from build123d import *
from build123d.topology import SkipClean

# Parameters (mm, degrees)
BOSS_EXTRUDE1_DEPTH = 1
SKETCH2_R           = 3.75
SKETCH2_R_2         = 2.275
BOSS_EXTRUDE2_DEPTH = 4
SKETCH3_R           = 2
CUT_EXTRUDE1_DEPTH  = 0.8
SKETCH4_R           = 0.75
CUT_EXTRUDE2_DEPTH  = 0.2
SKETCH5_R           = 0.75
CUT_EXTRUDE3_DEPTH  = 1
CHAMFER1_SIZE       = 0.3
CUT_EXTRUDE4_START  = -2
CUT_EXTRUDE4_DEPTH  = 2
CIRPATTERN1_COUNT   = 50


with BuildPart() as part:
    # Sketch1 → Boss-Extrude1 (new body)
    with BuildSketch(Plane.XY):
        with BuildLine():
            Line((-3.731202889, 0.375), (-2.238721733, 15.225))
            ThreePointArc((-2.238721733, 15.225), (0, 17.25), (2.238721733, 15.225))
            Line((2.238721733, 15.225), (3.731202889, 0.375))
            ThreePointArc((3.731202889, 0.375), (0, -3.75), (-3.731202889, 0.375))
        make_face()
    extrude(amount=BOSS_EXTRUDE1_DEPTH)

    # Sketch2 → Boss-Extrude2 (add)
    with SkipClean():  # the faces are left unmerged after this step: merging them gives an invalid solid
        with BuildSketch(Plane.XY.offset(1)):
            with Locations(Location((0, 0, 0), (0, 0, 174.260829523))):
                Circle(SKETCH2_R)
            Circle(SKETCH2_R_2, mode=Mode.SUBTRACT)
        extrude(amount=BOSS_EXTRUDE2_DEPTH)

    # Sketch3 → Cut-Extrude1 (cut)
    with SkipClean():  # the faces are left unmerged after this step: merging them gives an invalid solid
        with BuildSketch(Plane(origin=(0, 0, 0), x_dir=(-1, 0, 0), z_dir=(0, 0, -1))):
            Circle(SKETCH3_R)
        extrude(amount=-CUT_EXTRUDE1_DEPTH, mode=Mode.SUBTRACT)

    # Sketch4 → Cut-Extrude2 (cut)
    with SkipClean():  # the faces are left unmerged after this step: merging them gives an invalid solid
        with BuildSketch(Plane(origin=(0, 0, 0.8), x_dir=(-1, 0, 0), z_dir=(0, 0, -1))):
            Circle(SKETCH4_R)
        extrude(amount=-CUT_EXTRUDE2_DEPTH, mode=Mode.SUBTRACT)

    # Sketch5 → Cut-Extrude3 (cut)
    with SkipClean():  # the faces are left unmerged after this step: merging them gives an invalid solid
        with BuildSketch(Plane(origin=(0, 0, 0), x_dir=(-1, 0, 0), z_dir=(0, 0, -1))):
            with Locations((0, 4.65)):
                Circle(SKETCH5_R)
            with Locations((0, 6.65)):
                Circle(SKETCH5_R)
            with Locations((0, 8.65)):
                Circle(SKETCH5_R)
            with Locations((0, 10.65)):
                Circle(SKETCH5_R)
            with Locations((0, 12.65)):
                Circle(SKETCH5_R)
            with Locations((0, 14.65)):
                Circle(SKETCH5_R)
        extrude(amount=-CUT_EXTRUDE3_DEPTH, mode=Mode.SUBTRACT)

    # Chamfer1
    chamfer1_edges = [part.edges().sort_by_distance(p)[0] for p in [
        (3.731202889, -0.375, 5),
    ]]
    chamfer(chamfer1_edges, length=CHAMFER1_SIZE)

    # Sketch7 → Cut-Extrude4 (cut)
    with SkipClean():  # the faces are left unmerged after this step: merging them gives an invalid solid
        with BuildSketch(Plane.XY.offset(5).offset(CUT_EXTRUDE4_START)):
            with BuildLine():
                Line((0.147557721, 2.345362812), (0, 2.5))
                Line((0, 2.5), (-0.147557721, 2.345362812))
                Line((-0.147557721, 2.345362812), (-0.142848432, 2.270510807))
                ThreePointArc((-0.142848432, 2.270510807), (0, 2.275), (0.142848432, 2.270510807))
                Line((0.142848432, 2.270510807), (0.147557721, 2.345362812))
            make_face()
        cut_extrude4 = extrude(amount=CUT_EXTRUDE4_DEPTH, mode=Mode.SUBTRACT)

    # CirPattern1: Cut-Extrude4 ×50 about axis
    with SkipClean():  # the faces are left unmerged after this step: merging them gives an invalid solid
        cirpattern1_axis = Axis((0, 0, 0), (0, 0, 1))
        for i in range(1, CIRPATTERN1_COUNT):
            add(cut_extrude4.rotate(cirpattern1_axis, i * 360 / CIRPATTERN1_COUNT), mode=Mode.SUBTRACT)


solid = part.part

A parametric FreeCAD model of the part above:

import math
import FreeCAD as App
import Part
import Sketcher
Q = App.Units.Quantity


def edges_at(feature, points):
    """Names of the edges that pass closest to the given points."""
    edges = feature.Shape.Edges
    near = lambda p: min(range(len(edges)), key=lambda i: edges[i].distToShape(Part.Vertex(*p))[0])
    return sorted({f"Edge{near(p) + 1}" for p in points})

doc = App.newDocument("Part")
body = doc.addObject("PartDesign::Body", "Body")

sketch1 = doc.addObject("Sketcher::SketchObject", "Sketch")
body.addObject(sketch1)
sketch1.AttachmentSupport = (doc.XY_Plane, [""])
sketch1.MapMode = "FlatFace"
sketch1.addGeometry(Part.LineSegment(App.Vector(-2.2, 15.2, 0), App.Vector(-3.7, 0.4, 0)), False)
sketch1.addGeometry(Part.ArcOfCircle(Part.Circle(App.Vector(0, 0, 0), App.Vector(0, 0, 1), 3.8), math.radians(174), math.radians(366)), False)
sketch1.addGeometry(Part.LineSegment(App.Vector(3.7, 0.4, 0), App.Vector(2.2, 15.2, 0)), False)
sketch1.addGeometry(Part.ArcOfCircle(Part.Circle(App.Vector(0, 15, 0), App.Vector(0, 0, 1), 2.2), math.radians(6), math.radians(174)), False)
sketch1.addConstraint(Sketcher.Constraint("Tangent", 0, 2, 1, 1))
sketch1.addConstraint(Sketcher.Constraint("Tangent", 1, 2, 2, 1))
sketch1.addConstraint(Sketcher.Constraint("Tangent", 2, 2, 3, 1))
sketch1.addConstraint(Sketcher.Constraint("Tangent", 3, 2, 0, 1))
sketch1.addConstraint(Sketcher.Constraint("Coincident", 1, 3, -1, 1))
sketch1.addConstraint(Sketcher.Constraint("PointOnObject", 3, 3, -2))
sketch1.addConstraint(Sketcher.Constraint("Radius", 1, Q("3.75 mm")))
sketch1.addConstraint(Sketcher.Constraint("Radius", 3, Q("2.25 mm")))
sketch1.addConstraint(Sketcher.Constraint("DistanceY", -1, 1, 3, 3, Q("15 mm")))
pad1 = doc.addObject("PartDesign::Pad", "Pad")
body.addObject(pad1)
pad1.Profile = sketch1
pad1.Length = 1

sketch2 = doc.addObject("Sketcher::SketchObject", "Sketch001")
body.addObject(sketch2)
sketch2.AttachmentSupport = (doc.XY_Plane, [""])
sketch2.MapMode = "FlatFace"
sketch2.AttachmentOffset = App.Placement(App.Vector(0, 0, 1), App.Rotation())
sketch2.addGeometry(Part.Circle(App.Vector(0, 0, 0), App.Vector(0, 0, 1), 3.8), False)
sketch2.addGeometry(Part.Circle(App.Vector(0, 0, 0), App.Vector(0, 0, 1), 2.3), False)
sketch2.addConstraint(Sketcher.Constraint("Coincident", 0, 3, -1, 1))
sketch2.addConstraint(Sketcher.Constraint("Coincident", 1, 3, -1, 1))
sketch2.addConstraint(Sketcher.Constraint("Diameter", 0, Q("7.5 mm")))
sketch2.addConstraint(Sketcher.Constraint("Diameter", 1, Q("4.55 mm")))
pad2 = doc.addObject("PartDesign::Pad", "Pad001")
body.addObject(pad2)
pad2.Profile = sketch2
pad2.Length = 4

sketch3 = doc.addObject("Sketcher::SketchObject", "Sketch002")
body.addObject(sketch3)
sketch3.AttachmentSupport = (doc.XY_Plane, [""])
sketch3.MapMode = "FlatFace"
sketch3.addGeometry(Part.Circle(App.Vector(0, 0, 0), App.Vector(0, 0, 1), 2), False)
sketch3.addConstraint(Sketcher.Constraint("Coincident", 0, 3, -1, 1))
sketch3.addConstraint(Sketcher.Constraint("Diameter", 0, Q("4 mm")))
pocket1 = doc.addObject("PartDesign::Pocket", "Pocket")
body.addObject(pocket1)
pocket1.Profile = sketch3
pocket1.Length = 0.8
pocket1.Reversed = True

sketch4 = doc.addObject("Sketcher::SketchObject", "Sketch003")
body.addObject(sketch4)
sketch4.AttachmentSupport = (doc.XY_Plane, [""])
sketch4.MapMode = "FlatFace"
sketch4.AttachmentOffset = App.Placement(App.Vector(0, 0, 0.8), App.Rotation())
sketch4.addGeometry(Part.Circle(App.Vector(0, 0, 0), App.Vector(0, 0, 1), 0.8), False)
sketch4.addConstraint(Sketcher.Constraint("Coincident", 0, 3, -1, 1))
sketch4.addConstraint(Sketcher.Constraint("Diameter", 0, Q("1.5 mm")))
pocket2 = doc.addObject("PartDesign::Pocket", "Pocket001")
body.addObject(pocket2)
pocket2.Profile = sketch4
pocket2.Length = 0.2
pocket2.Reversed = True

sketch5 = doc.addObject("Sketcher::SketchObject", "Sketch004")
body.addObject(sketch5)
sketch5.AttachmentSupport = (doc.XY_Plane, [""])
sketch5.MapMode = "FlatFace"
sketch5.addGeometry(Part.Circle(App.Vector(0, 4.7, 0), App.Vector(0, 0, 1), 0.8), False)
sketch5.addGeometry(Part.Circle(App.Vector(0, 6.7, 0), App.Vector(0, 0, 1), 0.8), False)
sketch5.addGeometry(Part.Circle(App.Vector(0, 8.7, 0), App.Vector(0, 0, 1), 0.8), False)
sketch5.addGeometry(Part.Circle(App.Vector(0, 10.7, 0), App.Vector(0, 0, 1), 0.8), False)
sketch5.addGeometry(Part.Circle(App.Vector(0, 12.7, 0), App.Vector(0, 0, 1), 0.8), False)
sketch5.addGeometry(Part.Circle(App.Vector(0, 14.7, 0), App.Vector(0, 0, 1), 0.8), False)
sketch5.addConstraint(Sketcher.Constraint("Equal", 0, 1))
sketch5.addConstraint(Sketcher.Constraint("Equal", 1, 2))
sketch5.addConstraint(Sketcher.Constraint("Equal", 2, 3))
sketch5.addConstraint(Sketcher.Constraint("Equal", 3, 4))
sketch5.addConstraint(Sketcher.Constraint("Equal", 4, 5))
sketch5.addConstraint(Sketcher.Constraint("PointOnObject", 0, 3, -2))
sketch5.addConstraint(Sketcher.Constraint("PointOnObject", 1, 3, -2))
sketch5.addConstraint(Sketcher.Constraint("PointOnObject", 2, 3, -2))
sketch5.addConstraint(Sketcher.Constraint("PointOnObject", 3, 3, -2))
sketch5.addConstraint(Sketcher.Constraint("PointOnObject", 4, 3, -2))
sketch5.addConstraint(Sketcher.Constraint("PointOnObject", 5, 3, -2))
sketch5.addConstraint(Sketcher.Constraint("Diameter", 0, Q("1.5 mm")))
sketch5.addConstraint(Sketcher.Constraint("DistanceY", 0, 3, 1, 3, Q("2 mm")))
sketch5.addConstraint(Sketcher.Constraint("DistanceY", 1, 3, 2, 3, Q("2 mm")))
sketch5.addConstraint(Sketcher.Constraint("DistanceY", 2, 3, 3, 3, Q("2 mm")))
sketch5.addConstraint(Sketcher.Constraint("DistanceY", 3, 3, 4, 3, Q("2 mm")))
sketch5.addConstraint(Sketcher.Constraint("DistanceY", 4, 3, 5, 3, Q("2 mm")))
sketch5.addConstraint(Sketcher.Constraint("DistanceY", -1, 1, 0, 3, Q("4.65 mm")))
pocket3 = doc.addObject("PartDesign::Pocket", "Pocket002")
body.addObject(pocket3)
pocket3.Profile = sketch5
pocket3.Length = 1
pocket3.Reversed = True
doc.recompute()

chamfer = doc.addObject("PartDesign::Chamfer", "Chamfer")
body.addObject(chamfer)
chamfer.Base = (pocket3, edges_at(pocket3, [(3.731, -0.375, 5)]))
chamfer.Size = 0.3

sketch6 = doc.addObject("Sketcher::SketchObject", "Sketch005")
body.addObject(sketch6)
sketch6.AttachmentSupport = (doc.XY_Plane, [""])
sketch6.MapMode = "FlatFace"
sketch6.AttachmentOffset = App.Placement(App.Vector(0, 0, 3), App.Rotation())
sketch6.addGeometry(Part.LineSegment(App.Vector(0.15, 2.35, 0), App.Vector(0, 2.5, 0)), False)
sketch6.addGeometry(Part.LineSegment(App.Vector(0, 2.5, 0), App.Vector(-0.15, 2.35, 0)), False)
sketch6.addGeometry(Part.LineSegment(App.Vector(-0.15, 2.35, 0), App.Vector(-0.14, 2.27, 0)), False)
sketch6.addGeometry(Part.ArcOfCircle(Part.Circle(App.Vector(0, 0, 0), App.Vector(0, 0, 1), 2.27), math.radians(86.4), math.radians(93.6)), False)
sketch6.addGeometry(Part.LineSegment(App.Vector(0.14, 2.27, 0), App.Vector(0.15, 2.35, 0)), False)
sketch6.addConstraint(Sketcher.Constraint("Coincident", 0, 2, 1, 1))
sketch6.addConstraint(Sketcher.Constraint("Coincident", 1, 2, 2, 1))
sketch6.addConstraint(Sketcher.Constraint("Coincident", 2, 2, 3, 2))
sketch6.addConstraint(Sketcher.Constraint("Coincident", 3, 1, 4, 1))
sketch6.addConstraint(Sketcher.Constraint("Coincident", 4, 2, 0, 1))
sketch6.addConstraint(Sketcher.Constraint("Coincident", 3, 3, -1, 1))
sketch6.addConstraint(Sketcher.Constraint("Symmetric", 1, 2, 4, 2, -2))
sketch6.addConstraint(Sketcher.Constraint("PointOnObject", 0, 2, -2))
sketch6.addConstraint(Sketcher.Constraint("Horizontal", 2, 2, 3, 1))
sketch6.addConstraint(Sketcher.Constraint("Angle", 2, Q("-86.4 deg")))
sketch6.addConstraint(Sketcher.Constraint("Radius", 3, Q("2.275 mm")))
sketch6.addConstraint(Sketcher.Constraint("DistanceY", -1, 1, 0, 2, Q("2.5 mm")))
sketch6.addConstraint(Sketcher.Constraint("Distance", 2, Q("0.075 mm")))
sketch6.addConstraint(Sketcher.Constraint("DistanceX", 2, 2, -1, 1, Q("0.142848 mm")))
pocket4 = doc.addObject("PartDesign::Pocket", "Pocket003")
body.addObject(pocket4)
pocket4.Profile = sketch6
pocket4.Length = 2
pocket4.Reversed = True
doc.recompute()

polarpattern = doc.addObject("PartDesign::PolarPattern", "PolarPattern")
body.addObject(polarpattern)
polarpattern.Originals = [pocket4]
polarpattern.Axis = (doc.Z_Axis, [""])
polarpattern.Angle = 360
polarpattern.Occurrences = 50
body.Tip = polarpattern

doc.recompute()
